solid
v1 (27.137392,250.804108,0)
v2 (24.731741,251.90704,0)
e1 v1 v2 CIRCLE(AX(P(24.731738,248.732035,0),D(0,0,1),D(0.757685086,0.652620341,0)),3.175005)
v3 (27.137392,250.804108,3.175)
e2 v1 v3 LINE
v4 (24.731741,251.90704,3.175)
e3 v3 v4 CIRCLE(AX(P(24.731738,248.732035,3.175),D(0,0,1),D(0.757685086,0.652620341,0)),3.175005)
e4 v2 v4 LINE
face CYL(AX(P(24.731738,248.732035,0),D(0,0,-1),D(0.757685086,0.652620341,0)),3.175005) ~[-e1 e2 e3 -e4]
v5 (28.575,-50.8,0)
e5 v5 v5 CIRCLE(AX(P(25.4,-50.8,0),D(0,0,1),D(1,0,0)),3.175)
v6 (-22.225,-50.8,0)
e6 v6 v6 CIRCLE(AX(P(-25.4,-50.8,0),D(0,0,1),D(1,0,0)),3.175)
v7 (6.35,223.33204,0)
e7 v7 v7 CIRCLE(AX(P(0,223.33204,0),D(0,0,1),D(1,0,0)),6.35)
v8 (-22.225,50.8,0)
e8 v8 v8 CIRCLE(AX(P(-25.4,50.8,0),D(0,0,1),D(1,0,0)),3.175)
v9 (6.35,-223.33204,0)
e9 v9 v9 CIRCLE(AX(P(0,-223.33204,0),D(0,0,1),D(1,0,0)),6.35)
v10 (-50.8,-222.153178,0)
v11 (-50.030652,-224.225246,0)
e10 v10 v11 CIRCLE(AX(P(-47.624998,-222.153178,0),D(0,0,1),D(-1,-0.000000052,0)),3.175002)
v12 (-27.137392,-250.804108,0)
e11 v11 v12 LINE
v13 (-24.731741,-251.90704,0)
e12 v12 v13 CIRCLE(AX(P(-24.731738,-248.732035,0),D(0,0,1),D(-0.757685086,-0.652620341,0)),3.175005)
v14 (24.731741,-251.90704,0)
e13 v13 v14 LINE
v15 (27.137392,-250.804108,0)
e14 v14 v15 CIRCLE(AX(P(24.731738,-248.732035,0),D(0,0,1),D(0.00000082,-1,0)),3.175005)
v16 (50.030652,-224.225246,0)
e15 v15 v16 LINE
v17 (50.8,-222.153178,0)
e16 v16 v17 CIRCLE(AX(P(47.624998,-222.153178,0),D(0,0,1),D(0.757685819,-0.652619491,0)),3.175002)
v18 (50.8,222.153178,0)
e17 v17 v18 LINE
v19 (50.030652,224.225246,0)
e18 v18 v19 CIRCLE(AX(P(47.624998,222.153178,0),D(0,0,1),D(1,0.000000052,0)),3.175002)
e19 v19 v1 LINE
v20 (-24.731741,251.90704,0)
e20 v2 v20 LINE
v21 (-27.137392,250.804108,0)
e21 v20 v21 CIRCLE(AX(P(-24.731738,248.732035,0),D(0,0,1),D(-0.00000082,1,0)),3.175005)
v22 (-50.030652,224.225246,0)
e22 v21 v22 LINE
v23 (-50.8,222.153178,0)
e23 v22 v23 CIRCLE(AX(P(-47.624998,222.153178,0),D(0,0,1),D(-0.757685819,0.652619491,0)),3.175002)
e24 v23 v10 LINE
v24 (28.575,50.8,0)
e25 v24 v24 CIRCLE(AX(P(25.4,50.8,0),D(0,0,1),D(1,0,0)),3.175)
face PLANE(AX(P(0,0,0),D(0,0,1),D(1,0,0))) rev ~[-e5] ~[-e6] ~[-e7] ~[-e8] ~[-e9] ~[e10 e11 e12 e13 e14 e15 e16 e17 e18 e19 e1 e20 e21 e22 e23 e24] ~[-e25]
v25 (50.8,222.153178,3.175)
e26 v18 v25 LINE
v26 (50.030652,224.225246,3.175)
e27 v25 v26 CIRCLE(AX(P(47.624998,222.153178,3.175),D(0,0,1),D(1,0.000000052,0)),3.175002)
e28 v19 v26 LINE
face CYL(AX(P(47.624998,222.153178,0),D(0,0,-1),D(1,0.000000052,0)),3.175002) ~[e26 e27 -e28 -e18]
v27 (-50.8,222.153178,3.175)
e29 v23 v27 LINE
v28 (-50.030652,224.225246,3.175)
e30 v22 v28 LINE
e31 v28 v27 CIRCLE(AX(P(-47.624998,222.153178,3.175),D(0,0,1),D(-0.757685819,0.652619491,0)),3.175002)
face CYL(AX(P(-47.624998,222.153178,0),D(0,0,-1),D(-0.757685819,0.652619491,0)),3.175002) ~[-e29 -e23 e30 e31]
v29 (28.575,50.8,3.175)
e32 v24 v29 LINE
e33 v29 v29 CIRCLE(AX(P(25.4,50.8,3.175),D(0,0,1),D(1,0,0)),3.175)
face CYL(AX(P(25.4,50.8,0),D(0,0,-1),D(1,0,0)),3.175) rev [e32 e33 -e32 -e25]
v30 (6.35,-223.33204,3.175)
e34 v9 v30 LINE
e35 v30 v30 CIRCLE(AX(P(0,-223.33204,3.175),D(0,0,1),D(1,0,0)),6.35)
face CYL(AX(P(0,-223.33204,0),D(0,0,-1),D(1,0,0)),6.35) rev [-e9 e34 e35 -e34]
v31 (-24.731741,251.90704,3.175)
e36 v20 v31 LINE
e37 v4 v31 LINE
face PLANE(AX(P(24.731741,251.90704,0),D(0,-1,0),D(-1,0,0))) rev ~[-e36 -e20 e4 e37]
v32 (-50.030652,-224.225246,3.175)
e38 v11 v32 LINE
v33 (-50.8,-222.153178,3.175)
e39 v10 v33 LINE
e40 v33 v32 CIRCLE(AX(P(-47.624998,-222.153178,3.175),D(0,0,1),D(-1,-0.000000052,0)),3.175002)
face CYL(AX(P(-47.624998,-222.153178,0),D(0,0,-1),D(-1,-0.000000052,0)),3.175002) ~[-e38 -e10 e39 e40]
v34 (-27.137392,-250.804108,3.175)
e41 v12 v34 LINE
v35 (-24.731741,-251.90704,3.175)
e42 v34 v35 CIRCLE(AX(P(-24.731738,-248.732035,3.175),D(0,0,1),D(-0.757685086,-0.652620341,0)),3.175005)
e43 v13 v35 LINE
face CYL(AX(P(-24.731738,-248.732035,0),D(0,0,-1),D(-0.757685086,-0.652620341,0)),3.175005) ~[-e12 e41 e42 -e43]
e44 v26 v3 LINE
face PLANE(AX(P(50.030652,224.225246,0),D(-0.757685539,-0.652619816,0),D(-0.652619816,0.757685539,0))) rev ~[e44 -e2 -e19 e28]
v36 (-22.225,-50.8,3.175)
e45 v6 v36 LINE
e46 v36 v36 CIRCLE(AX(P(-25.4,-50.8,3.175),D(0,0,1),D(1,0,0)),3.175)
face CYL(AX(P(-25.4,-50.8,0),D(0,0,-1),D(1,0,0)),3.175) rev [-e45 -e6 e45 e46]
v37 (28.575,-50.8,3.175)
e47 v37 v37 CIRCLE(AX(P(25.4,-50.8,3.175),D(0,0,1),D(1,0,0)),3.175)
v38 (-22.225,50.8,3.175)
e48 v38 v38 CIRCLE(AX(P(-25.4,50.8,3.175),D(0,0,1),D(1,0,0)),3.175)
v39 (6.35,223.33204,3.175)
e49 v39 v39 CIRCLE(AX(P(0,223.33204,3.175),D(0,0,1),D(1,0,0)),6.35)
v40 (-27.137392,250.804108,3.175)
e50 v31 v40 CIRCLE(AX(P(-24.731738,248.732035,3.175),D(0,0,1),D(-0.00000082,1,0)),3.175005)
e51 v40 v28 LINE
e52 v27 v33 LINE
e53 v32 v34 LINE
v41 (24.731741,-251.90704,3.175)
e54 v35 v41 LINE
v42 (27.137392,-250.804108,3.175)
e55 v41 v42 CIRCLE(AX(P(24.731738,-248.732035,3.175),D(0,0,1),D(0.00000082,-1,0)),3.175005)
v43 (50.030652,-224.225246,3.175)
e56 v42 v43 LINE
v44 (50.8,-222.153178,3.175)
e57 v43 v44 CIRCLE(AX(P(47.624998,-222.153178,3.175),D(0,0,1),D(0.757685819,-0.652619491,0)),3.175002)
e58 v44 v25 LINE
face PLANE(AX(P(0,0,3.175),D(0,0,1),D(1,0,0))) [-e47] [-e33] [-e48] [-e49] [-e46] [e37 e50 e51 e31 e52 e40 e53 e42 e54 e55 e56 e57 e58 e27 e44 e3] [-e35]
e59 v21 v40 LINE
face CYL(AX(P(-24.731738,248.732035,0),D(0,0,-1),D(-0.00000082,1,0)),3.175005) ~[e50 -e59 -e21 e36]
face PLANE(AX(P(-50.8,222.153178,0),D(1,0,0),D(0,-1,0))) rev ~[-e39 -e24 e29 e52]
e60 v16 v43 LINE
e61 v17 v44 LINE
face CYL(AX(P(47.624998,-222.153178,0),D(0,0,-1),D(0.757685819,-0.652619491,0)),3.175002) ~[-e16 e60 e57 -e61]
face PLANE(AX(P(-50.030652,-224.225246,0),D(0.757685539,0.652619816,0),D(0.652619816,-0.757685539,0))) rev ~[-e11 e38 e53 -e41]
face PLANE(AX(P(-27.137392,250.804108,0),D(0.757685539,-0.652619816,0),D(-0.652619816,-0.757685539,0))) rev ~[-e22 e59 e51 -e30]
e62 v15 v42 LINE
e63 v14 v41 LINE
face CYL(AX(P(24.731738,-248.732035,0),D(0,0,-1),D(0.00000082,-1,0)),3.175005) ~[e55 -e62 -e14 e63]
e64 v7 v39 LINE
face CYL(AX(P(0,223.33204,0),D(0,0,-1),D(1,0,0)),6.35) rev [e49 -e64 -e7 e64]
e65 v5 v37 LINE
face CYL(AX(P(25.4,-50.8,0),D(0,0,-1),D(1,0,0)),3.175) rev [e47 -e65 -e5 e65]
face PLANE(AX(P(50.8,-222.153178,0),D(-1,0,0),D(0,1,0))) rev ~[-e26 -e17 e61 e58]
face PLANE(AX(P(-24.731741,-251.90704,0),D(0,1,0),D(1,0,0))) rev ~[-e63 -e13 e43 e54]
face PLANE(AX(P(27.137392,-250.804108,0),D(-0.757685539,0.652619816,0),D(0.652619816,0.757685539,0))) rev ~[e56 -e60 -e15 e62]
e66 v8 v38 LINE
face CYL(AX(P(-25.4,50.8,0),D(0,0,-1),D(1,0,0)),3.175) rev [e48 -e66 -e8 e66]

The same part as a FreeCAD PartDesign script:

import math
import FreeCAD as App
import Part
import Sketcher

V = App.Vector
Q = App.Units.Quantity

doc = App.newDocument("Part")
params = doc.addObject("Spreadsheet::Sheet", "Params")
for row, (alias, value) in enumerate([
    ("sketch1_diameter", "0.5 in"),
    ("sketch1_diameter2", "0.25 in"),
    ("sketch1_radius", "0.1250002 in"),
    ("pad1_length", "0.125 in"),
], start=1):
    params.set(f"A{row}", alias)
    params.set(f"B{row}", "=" + value)
    params.setAlias(f"B{row}", alias)

body = doc.addObject("PartDesign::Body", "Body")

# Sketch on XY plane
sketch1 = body.newObject("Sketcher::SketchObject", "Sketch")
sketch1.AttachmentSupport = (doc.getObject("XY_Plane"), [""])
sketch1.MapMode = "FlatFace"
sketch1.addGeometry([
    Part.LineSegment(V(-50.8, 222.2, 0), V(-50.8, -222.2, 0)),  # 0
    Part.ArcOfCircle(Part.Circle(V(-47.6, -222.2, 0), V(0, 0, 1), 3.2), math.radians(-180), math.radians(-139)),  # 1
    Part.LineSegment(V(-50, -224.2, 0), V(-27.1, -250.8, 0)),  # 2
    Part.ArcOfCircle(Part.Circle(V(-24.7, -248.7, 0), V(0, 0, 1), 3.2), math.radians(-139), math.radians(-90)),  # 3
    Part.LineSegment(V(-24.7, -251.9, 0), V(24.7, -251.9, 0)),  # 4
    Part.ArcOfCircle(Part.Circle(V(24.7, -248.7, 0), V(0, 0, 1), 3.2), math.radians(-90), math.radians(-41)),  # 5
    Part.LineSegment(V(27.1, -250.8, 0), V(50, -224.2, 0)),  # 6
    Part.ArcOfCircle(Part.Circle(V(47.6, -222.2, 0), V(0, 0, 1), 3.2), math.radians(-41), math.radians(0)),  # 7
    Part.LineSegment(V(50.8, -222.2, 0), V(50.8, 222.2, 0)),  # 8
    Part.ArcOfCircle(Part.Circle(V(47.6, 222.2, 0), V(0, 0, 1), 3.2), math.radians(0), math.radians(41)),  # 9
    Part.LineSegment(V(50, 224.2, 0), V(27.1, 250.8, 0)),  # 10
    Part.ArcOfCircle(Part.Circle(V(24.7, 248.7, 0), V(0, 0, 1), 3.2), math.radians(41), math.radians(90)),  # 11
    Part.LineSegment(V(24.7, 251.9, 0), V(-24.7, 251.9, 0)),  # 12
    Part.ArcOfCircle(Part.Circle(V(-24.7, 248.7, 0), V(0, 0, 1), 3.2), math.radians(90), math.radians(139)),  # 13
    Part.LineSegment(V(-27.1, 250.8, 0), V(-50, 224.2, 0)),  # 14
    Part.ArcOfCircle(Part.Circle(V(-47.6, 222.2, 0), V(0, 0, 1), 3.2), math.radians(139), math.radians(180)),  # 15
    Part.Circle(V(-25.4, -50.8, 0), V(0, 0, 1), 3.2),  # 16
    Part.Circle(V(0, -223.3, 0), V(0, 0, 1), 6.3),  # 17
    Part.Circle(V(25.4, -50.8, 0), V(0, 0, 1), 3.2),  # 18
    Part.Circle(V(-25.4, 50.8, 0), V(0, 0, 1), 3.2),  # 19
    Part.Circle(V(25.4, 50.8, 0), V(0, 0, 1), 3.2),  # 20
    Part.Circle(V(0, 223.3, 0), V(0, 0, 1), 6.3),  # 21
], False)
sketch1.addConstraint([
    Sketcher.Constraint("Tangent", 0, 2, 1, 1),
    Sketcher.Constraint("Tangent", 1, 2, 2, 1),
    Sketcher.Constraint("Tangent", 2, 2, 3, 1),
    Sketcher.Constraint("Tangent", 3, 2, 4, 1),
    Sketcher.Constraint("Tangent", 4, 2, 5, 1),
    Sketcher.Constraint("Tangent", 5, 2, 6, 1),
    Sketcher.Constraint("Tangent", 6, 2, 7, 1),
    Sketcher.Constraint("Tangent", 7, 2, 8, 1),
    Sketcher.Constraint("Tangent", 8, 2, 9, 1),
    Sketcher.Constraint("Tangent", 9, 2, 10, 1),
    Sketcher.Constraint("Tangent", 10, 2, 11, 1),
    Sketcher.Constraint("Tangent", 11, 2, 12, 1),
    Sketcher.Constraint("Tangent", 12, 2, 13, 1),
    Sketcher.Constraint("Tangent", 13, 2, 14, 1),
    Sketcher.Constraint("Tangent", 14, 2, 15, 1),
    Sketcher.Constraint("Tangent", 15, 2, 0, 1),
    Sketcher.Constraint("Vertical", 0),
    Sketcher.Constraint("Horizontal", 4),
    Sketcher.Constraint("Vertical", 8),
    Sketcher.Constraint("Horizontal", 12),
    Sketcher.Constraint("Equal", 3, 5),
    Sketcher.Constraint("Equal", 1, 7),
    Sketcher.Constraint("Equal", 7, 9),
    Sketcher.Constraint("Equal", 5, 11),
    Sketcher.Constraint("Equal", 11, 13),
    Sketcher.Constraint("Equal", 9, 15),
    Sketcher.Constraint("Equal", 15, 16),
    Sketcher.Constraint("Equal", 16, 18),
    Sketcher.Constraint("Equal", 18, 19),
    Sketcher.Constraint("Equal", 19, 20),
    Sketcher.Constraint("Equal", 17, 21),
    Sketcher.Constraint("Symmetric", 1, 3, 9, 3, -1, 1),
    Sketcher.Constraint("Symmetric", 3, 3, 11, 3, -1, 1),
    Sketcher.Constraint("Symmetric", 18, 3, 19, 3, -1, 1),
    Sketcher.Constraint("Symmetric", 16, 3, 20, 3, -1, 1),
    Sketcher.Constraint("Symmetric", 17, 3, 21, 3, -1, 1),
    Sketcher.Constraint("Symmetric", 5, 2, 13, 2, -1, 1),
    Sketcher.Constraint("Symmetric", 16, 3, 18, 3, -2),
    Sketcher.Constraint("Symmetric", 2, 2, 5, 2, -2),
    Sketcher.Constraint("PointOnObject", 17, 3, -2),
    Sketcher.Constraint("Diameter", 17, Q("0.5 in")),
    Sketcher.Constraint("Diameter", 16, Q("0.25 in")),
    Sketcher.Constraint("DistanceX", 16, 3, -1, 1, Q("1 in")),
    Sketcher.Constraint("DistanceY", 16, 3, -1, 1, Q("2 in")),
    Sketcher.Constraint("DistanceX", 0, 2, -1, 1, Q("2 in")),
    Sketcher.Constraint("Radius", 3, Q("0.1250002 in")),
    Sketcher.Constraint("DistanceY", 3, 3, 17, 3, Q("0.9999998 in")),
    Sketcher.Constraint("DistanceY", 3, 3, -1, 1, Q("9.7925998 in")),
    Sketcher.Constraint("DistanceX", 4, 1, 4, 2, Q("49.463482 mm")),
    Sketcher.Constraint("DistanceY", 0, 2, 0, 1, Q("444.306356 mm")),
])
sketch1.setExpression("Constraints[40]", "Params.sketch1_diameter")
sketch1.setExpression("Constraints[41]", "Params.sketch1_diameter2")
sketch1.setExpression("Constraints[45]", "Params.sketch1_radius")
pad1 = body.newObject("PartDesign::Pad", "Pad")
pad1.Profile = sketch1
pad1.setExpression("Length", "Params.pad1_length")

doc.recompute()
